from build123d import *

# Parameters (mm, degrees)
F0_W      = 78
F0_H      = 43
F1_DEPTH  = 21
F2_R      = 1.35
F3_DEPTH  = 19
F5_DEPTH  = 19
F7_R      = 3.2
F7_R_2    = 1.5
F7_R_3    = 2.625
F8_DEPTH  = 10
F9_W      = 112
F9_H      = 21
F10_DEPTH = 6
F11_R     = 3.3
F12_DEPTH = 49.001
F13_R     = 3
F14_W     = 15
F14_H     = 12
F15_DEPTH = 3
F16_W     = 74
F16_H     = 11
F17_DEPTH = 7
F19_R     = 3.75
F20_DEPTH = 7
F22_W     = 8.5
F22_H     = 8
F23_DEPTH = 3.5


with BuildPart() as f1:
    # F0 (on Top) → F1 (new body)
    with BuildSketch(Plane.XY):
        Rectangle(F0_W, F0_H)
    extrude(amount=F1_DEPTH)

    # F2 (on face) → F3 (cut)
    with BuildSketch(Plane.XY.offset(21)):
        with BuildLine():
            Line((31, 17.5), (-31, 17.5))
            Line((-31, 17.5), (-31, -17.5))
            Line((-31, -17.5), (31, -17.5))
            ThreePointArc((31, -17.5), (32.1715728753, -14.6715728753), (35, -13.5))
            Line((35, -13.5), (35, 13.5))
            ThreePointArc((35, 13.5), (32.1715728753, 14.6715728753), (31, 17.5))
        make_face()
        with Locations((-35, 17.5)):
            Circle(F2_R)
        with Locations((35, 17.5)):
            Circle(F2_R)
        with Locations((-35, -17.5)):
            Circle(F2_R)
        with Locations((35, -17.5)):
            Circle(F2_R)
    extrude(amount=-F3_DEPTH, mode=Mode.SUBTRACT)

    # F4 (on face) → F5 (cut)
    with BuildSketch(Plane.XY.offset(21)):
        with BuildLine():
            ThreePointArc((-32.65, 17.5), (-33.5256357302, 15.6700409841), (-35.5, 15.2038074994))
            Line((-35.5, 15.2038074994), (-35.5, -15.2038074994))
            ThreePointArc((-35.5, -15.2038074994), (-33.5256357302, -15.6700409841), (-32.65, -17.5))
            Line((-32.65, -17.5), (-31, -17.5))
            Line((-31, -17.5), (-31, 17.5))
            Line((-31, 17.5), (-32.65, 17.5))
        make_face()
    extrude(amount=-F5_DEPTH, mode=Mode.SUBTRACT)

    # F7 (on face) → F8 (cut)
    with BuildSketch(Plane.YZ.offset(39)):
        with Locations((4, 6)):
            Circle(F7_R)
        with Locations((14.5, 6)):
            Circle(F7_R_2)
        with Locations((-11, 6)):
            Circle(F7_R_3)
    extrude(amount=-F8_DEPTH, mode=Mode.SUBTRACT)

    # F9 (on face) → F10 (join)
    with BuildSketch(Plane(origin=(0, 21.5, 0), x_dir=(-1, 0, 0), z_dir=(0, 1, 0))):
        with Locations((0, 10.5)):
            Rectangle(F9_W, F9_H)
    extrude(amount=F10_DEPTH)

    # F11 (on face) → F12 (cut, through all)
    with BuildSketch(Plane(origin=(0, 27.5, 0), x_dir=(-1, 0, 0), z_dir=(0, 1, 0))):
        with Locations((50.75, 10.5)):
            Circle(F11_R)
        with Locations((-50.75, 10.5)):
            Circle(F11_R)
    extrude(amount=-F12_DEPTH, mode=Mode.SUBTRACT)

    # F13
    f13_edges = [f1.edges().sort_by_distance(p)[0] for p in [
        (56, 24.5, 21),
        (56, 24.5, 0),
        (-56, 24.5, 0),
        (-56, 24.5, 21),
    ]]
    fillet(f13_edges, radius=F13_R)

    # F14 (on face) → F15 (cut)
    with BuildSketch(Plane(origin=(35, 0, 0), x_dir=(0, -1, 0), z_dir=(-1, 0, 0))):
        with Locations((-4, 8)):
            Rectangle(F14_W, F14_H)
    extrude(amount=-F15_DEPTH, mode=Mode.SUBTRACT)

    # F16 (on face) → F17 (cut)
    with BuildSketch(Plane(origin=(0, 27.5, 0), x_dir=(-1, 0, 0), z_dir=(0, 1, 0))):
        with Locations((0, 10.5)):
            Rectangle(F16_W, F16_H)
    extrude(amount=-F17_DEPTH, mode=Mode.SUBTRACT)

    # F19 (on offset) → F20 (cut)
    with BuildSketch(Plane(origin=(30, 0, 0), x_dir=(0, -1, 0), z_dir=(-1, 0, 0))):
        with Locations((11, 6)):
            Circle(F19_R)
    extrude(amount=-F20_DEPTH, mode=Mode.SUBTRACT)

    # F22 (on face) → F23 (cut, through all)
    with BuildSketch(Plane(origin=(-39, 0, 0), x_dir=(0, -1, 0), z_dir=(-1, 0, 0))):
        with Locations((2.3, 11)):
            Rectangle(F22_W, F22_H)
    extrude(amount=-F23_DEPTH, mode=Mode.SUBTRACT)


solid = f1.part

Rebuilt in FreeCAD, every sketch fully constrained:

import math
import FreeCAD as App
import Part
import Sketcher
from FreeCAD import Vector


def edges_at(feature, points):
    """Names of the edges that pass closest to the given points."""
    edges = feature.Shape.Edges
    near = lambda p: min(range(len(edges)), key=lambda i: edges[i].distToShape(Part.Vertex(*p))[0])
    return sorted({f"Edge{near(p) + 1}" for p in points})

doc = App.newDocument("Part")
body = doc.addObject("PartDesign::Body", "Body")

# Sketch on XY plane
sketch1 = body.newObject("Sketcher::SketchObject", "Sketch")
sketch1.AttachmentSupport = (doc.getObject("XY_Plane"), [""])
sketch1.MapMode = "FlatFace"
sketch1.addGeometry(Part.LineSegment(Vector(-39, 22, 0), Vector(-39, -22, 0)), False)
sketch1.addGeometry(Part.LineSegment(Vector(-39, -22, 0), Vector(39, -22, 0)), False)
sketch1.addGeometry(Part.LineSegment(Vector(39, -22, 0), Vector(39, 22, 0)), False)
sketch1.addGeometry(Part.LineSegment(Vector(39, 22, 0), Vector(-39, 22, 0)), False)
sketch1.addConstraint(Sketcher.Constraint("Coincident", 0, 2, 1, 1))
sketch1.addConstraint(Sketcher.Constraint("Coincident", 1, 2, 2, 1))
sketch1.addConstraint(Sketcher.Constraint("Coincident", 2, 2, 3, 1))
sketch1.addConstraint(Sketcher.Constraint("Coincident", 3, 2, 0, 1))
sketch1.addConstraint(Sketcher.Constraint("Vertical", 0))
sketch1.addConstraint(Sketcher.Constraint("Horizontal", 1))
sketch1.addConstraint(Sketcher.Constraint("Vertical", 2))
sketch1.addConstraint(Sketcher.Constraint("Horizontal", 3))
sketch1.addConstraint(Sketcher.Constraint("Symmetric", 0, 2, 2, 2, -1, 1))
sketch1.addConstraint(Sketcher.Constraint("DistanceX", 1, 1, 1, 2, 78.0))
sketch1.addConstraint(Sketcher.Constraint("DistanceY", 0, 2, 0, 1, 43.0))
pad1 = body.newObject("PartDesign::Pad", "Pad")
pad1.Profile = sketch1
pad1.Length = 21

# Sketch on XY plane
sketch2 = body.newObject("Sketcher::SketchObject", "Sketch001")
sketch2.AttachmentSupport = (doc.getObject("XY_Plane"), [""])
sketch2.MapMode = "FlatFace"
sketch2.AttachmentOffset = App.Placement(Vector(0, 0, 21), App.Rotation())
sketch2.addGeometry(Part.LineSegment(Vector(31, 17.5, 0), Vector(-31, 17.5, 0)), False)
sketch2.addGeometry(Part.LineSegment(Vector(-31, 17.5, 0), Vector(-31, -17.5, 0)), False)
sketch2.addGeometry(Part.LineSegment(Vector(-31, -17.5, 0), Vector(31, -17.5, 0)), False)
sketch2.addGeometry(Part.ArcOfCircle(Part.Circle(Vector(35, -17.5, 0), Vector(0, 0, 1), 4), math.radians(90), math.radians(180)), False)
sketch2.addGeometry(Part.LineSegment(Vector(35, -13.5, 0), Vector(35, 13.5, 0)), False)
sketch2.addGeometry(Part.ArcOfCircle(Part.Circle(Vector(35, 17.5, 0), Vector(0, 0, 1), 4), math.radians(180), math.radians(270)), False)
sketch2.addGeometry(Part.Circle(Vector(-35, 17.5, 0), Vector(0, 0, 1), 1.4), False)
sketch2.addGeometry(Part.Circle(Vector(35, 17.5, 0), Vector(0, 0, 1), 1.4), False)
sketch2.addGeometry(Part.Circle(Vector(-35, -17.5, 0), Vector(0, 0, 1), 1.4), False)
sketch2.addGeometry(Part.Circle(Vector(35, -17.5, 0), Vector(0, 0, 1), 1.4), False)
sketch2.addConstraint(Sketcher.Constraint("Coincident", 0, 2, 1, 1))
sketch2.addConstraint(Sketcher.Constraint("Coincident", 1, 2, 2, 1))
sketch2.addConstraint(Sketcher.Constraint("Coincident", 2, 2, 3, 2))
sketch2.addConstraint(Sketcher.Constraint("Coincident", 3, 1, 4, 1))
sketch2.addConstraint(Sketcher.Constraint("Coincident", 4, 2, 5, 2))
sketch2.addConstraint(Sketcher.Constraint("Coincident", 5, 1, 0, 1))
sketch2.addConstraint(Sketcher.Constraint("Horizontal", 0))
sketch2.addConstraint(Sketcher.Constraint("Vertical", 1))
sketch2.addConstraint(Sketcher.Constraint("Horizontal", 2))
sketch2.addConstraint(Sketcher.Constraint("Vertical", 4))
sketch2.addConstraint(Sketcher.Constraint("Coincident", 7, 3, 5, 3))
sketch2.addConstraint(Sketcher.Constraint("Coincident", 9, 3, 3, 3))
sketch2.addConstraint(Sketcher.Constraint("Equal", 3, 5))
sketch2.addConstraint(Sketcher.Constraint("Equal", 6, 7))
sketch2.addConstraint(Sketcher.Constraint("Equal", 7, 8))
sketch2.addConstraint(Sketcher.Constraint("Equal", 8, 9))
sketch2.addConstraint(Sketcher.Constraint("Symmetric", 3, 3, 6, 3, -1, 1))
sketch2.addConstraint(Sketcher.Constraint("Symmetric", 5, 3, 8, 3, -1, 1))
sketch2.addConstraint(Sketcher.Constraint("Symmetric", 0, 2, 2, 2, -1, 1))
sketch2.addConstraint(Sketcher.Constraint("Symmetric", 5, 3, 6, 3, -2))
sketch2.addConstraint(Sketcher.Constraint("Horizontal", 7, 3, 0, 2))
sketch2.addConstraint(Sketcher.Constraint("Vertical", 9, 3, 3, 1))
sketch2.addConstraint(Sketcher.Constraint("Radius", 3, 4.0))
sketch2.addConstraint(Sketcher.Constraint("Diameter", 6, 2.7))
sketch2.addConstraint(Sketcher.Constraint("DistanceX", 0, 2, 0, 1, 62.0))
sketch2.addConstraint(Sketcher.Constraint("DistanceY", 1, 2, 1, 1, 35.0))
pocket1 = body.newObject("PartDesign::Pocket", "Pocket")
pocket1.Profile = sketch2
pocket1.Length = 19

# Sketch on XY plane
sketch3 = body.newObject("Sketcher::SketchObject", "Sketch002")
sketch3.AttachmentSupport = (doc.getObject("XY_Plane"), [""])
sketch3.MapMode = "FlatFace"
sketch3.AttachmentOffset = App.Placement(Vector(0, 0, 21), App.Rotation())
sketch3.addGeometry(Part.ArcOfCircle(Part.Circle(Vector(-35, 17.5, 0), Vector(0, 0, 1), 2.4), math.radians(-102), math.radians(0)), False)
sketch3.addGeometry(Part.LineSegment(Vector(-35.5, 15.2, 0), Vector(-35.5, -15.2, 0)), False)
sketch3.addGeometry(Part.ArcOfCircle(Part.Circle(Vector(-35, -17.5, 0), Vector(0, 0, 1), 2.4), math.radians(0), math.radians(102)), False)
sketch3.addGeometry(Part.LineSegment(Vector(-32.6, -17.5, 0), Vector(-31, -17.5, 0)), False)
sketch3.addGeometry(Part.LineSegment(Vector(-31, -17.5, 0), Vector(-31, 17.5, 0)), False)
sketch3.addGeometry(Part.LineSegment(Vector(-31, 17.5, 0), Vector(-32.6, 17.5, 0)), False)
sketch3.addConstraint(Sketcher.Constraint("Coincident", 0, 1, 1, 1))
sketch3.addConstraint(Sketcher.Constraint("Coincident", 1, 2, 2, 2))
sketch3.addConstraint(Sketcher.Constraint("Coincident", 2, 1, 3, 1))
sketch3.addConstraint(Sketcher.Constraint("Coincident", 3, 2, 4, 1))
sketch3.addConstraint(Sketcher.Constraint("Coincident", 4, 2, 5, 1))
sketch3.addConstraint(Sketcher.Constraint("Coincident", 5, 2, 0, 2))
sketch3.addConstraint(Sketcher.Constraint("Vertical", 1))
sketch3.addConstraint(Sketcher.Constraint("Horizontal", 3))
sketch3.addConstraint(Sketcher.Constraint("Vertical", 4))
sketch3.addConstraint(Sketcher.Constraint("Horizontal", 5))
sketch3.addConstraint(Sketcher.Constraint("Equal", 0, 2))
sketch3.addConstraint(Sketcher.Constraint("Symmetric", 0, 3, 2, 3, -1))
sketch3.addConstraint(Sketcher.Constraint("Horizontal", 0, 3, 4, 2))
sketch3.addConstraint(Sketcher.Constraint("DistanceY", 4, 1, 4, 2, 35.0))
sketch3.addConstraint(Sketcher.Constraint("Radius", 0, 2.35))
sketch3.addConstraint(Sketcher.Constraint("DistanceX", 0, 3, -1, 1, 35.0))
sketch3.addConstraint(Sketcher.Constraint("DistanceX", 3, 2, -1, 1, 31.0))
sketch3.addConstraint(Sketcher.Constraint("DistanceY", 2, 3, 0, 3, 35.0))
sketch3.addConstraint(Sketcher.Constraint("DistanceX", 0, 1, -1, 1, 35.5))
pocket2 = body.newObject("PartDesign::Pocket", "Pocket001")
pocket2.Profile = sketch3
pocket2.Length = 19

# Sketch on YZ plane
sketch4 = body.newObject("Sketcher::SketchObject", "Sketch003")
sketch4.AttachmentSupport = (doc.getObject("YZ_Plane"), [""])
sketch4.MapMode = "FlatFace"
sketch4.AttachmentOffset = App.Placement(Vector(0, 0, 39), App.Rotation())
sketch4.addGeometry(Part.Circle(Vector(4, 6, 0), Vector(0, 0, 1), 3.2), False)
sketch4.addGeometry(Part.Circle(Vector(14.5, 6, 0), Vector(0, 0, 1), 1.5), False)
sketch4.addGeometry(Part.Circle(Vector(-11, 6, 0), Vector(0, 0, 1), 2.6), False)
sketch4.addConstraint(Sketcher.Constraint("Horizontal", 0, 3, 1, 3))
sketch4.addConstraint(Sketcher.Constraint("Horizontal", 1, 3, 2, 3))
sketch4.addConstraint(Sketcher.Constraint("Diameter", 1, 3.0))
sketch4.addConstraint(Sketcher.Constraint("Diameter", 0, 6.4))
sketch4.addConstraint(Sketcher.Constraint("Diameter", 2, 5.25))
sketch4.addConstraint(Sketcher.Constraint("DistanceX", -1, 1, 0, 3, 4.0))
sketch4.addConstraint(Sketcher.Constraint("DistanceY", -1, 1, 0, 3, 6.0))
sketch4.addConstraint(Sketcher.Constraint("DistanceX", 2, 3, -1, 1, 11.0))
sketch4.addConstraint(Sketcher.Constraint("DistanceX", -1, 1, 1, 3, 14.5))
pocket3 = body.newObject("PartDesign::Pocket", "Pocket002")
pocket3.Profile = sketch4
pocket3.Length = 10

# Sketch on XZ plane
sketch5 = body.newObject("Sketcher::SketchObject", "Sketch004")
sketch5.AttachmentSupport = (doc.getObject("XZ_Plane"), [""])
sketch5.MapMode = "FlatFace"
sketch5.AttachmentOffset = App.Placement(Vector(0, 0, -21.5), App.Rotation())
sketch5.addGeometry(Part.LineSegment(Vector(56, 21, 0), Vector(56, 0, 0)), False)
sketch5.addGeometry(Part.LineSegment(Vector(56, 0, 0), Vector(-56, 0, 0)), False)
sketch5.addGeometry(Part.LineSegment(Vector(-56, 0, 0), Vector(-56, 21, 0)), False)
sketch5.addGeometry(Part.LineSegment(Vector(-56, 21, 0), Vector(56, 21, 0)), False)
sketch5.addConstraint(Sketcher.Constraint("Coincident", 0, 2, 1, 1))
sketch5.addConstraint(Sketcher.Constraint("Coincident", 1, 2, 2, 1))
sketch5.addConstraint(Sketcher.Constraint("Coincident", 2, 2, 3, 1))
sketch5.addConstraint(Sketcher.Constraint("Coincident", 3, 2, 0, 1))
sketch5.addConstraint(Sketcher.Constraint("Vertical", 0))
sketch5.addConstraint(Sketcher.Constraint("Horizontal", 1))
sketch5.addConstraint(Sketcher.Constraint("Vertical", 2))
sketch5.addConstraint(Sketcher.Constraint("Horizontal", 3))
sketch5.addConstraint(Sketcher.Constraint("Symmetric", 0, 2, 1, 2, -1, 1))
sketch5.addConstraint(Sketcher.Constraint("DistanceX", 1, 2, 1, 1, 112.0))
sketch5.addConstraint(Sketcher.Constraint("DistanceY", 0, 2, 0, 1, 21.0))
pad2 = body.newObject("PartDesign::Pad", "Pad001")
pad2.Profile = sketch5
pad2.Length = 6
pad2.Reversed = True

# Sketch on XZ plane
sketch6 = body.newObject("Sketcher::SketchObject", "Sketch005")
sketch6.AttachmentSupport = (doc.getObject("XZ_Plane"), [""])
sketch6.MapMode = "FlatFace"
sketch6.AttachmentOffset = App.Placement(Vector(0, 0, -27.5), App.Rotation())
sketch6.addGeometry(Part.Circle(Vector(-50.8, 10.5, 0), Vector(0, 0, 1), 3.3), False)
sketch6.addGeometry(Part.Circle(Vector(50.8, 10.5, 0), Vector(0, 0, 1), 3.3), False)
sketch6.addConstraint(Sketcher.Constraint("Equal", 0, 1))
sketch6.addConstraint(Sketcher.Constraint("Symmetric", 0, 3, 1, 3, -2))
sketch6.addConstraint(Sketcher.Constraint("Diameter", 0, 6.6))
sketch6.addConstraint(Sketcher.Constraint("DistanceY", -1, 1, 0, 3, 10.5))
sketch6.addConstraint(Sketcher.Constraint("DistanceX", 0, 3, 1, 3, 101.5))
pocket4 = body.newObject("PartDesign::Pocket", "Pocket003")
pocket4.Profile = sketch6
pocket4.Type = "ThroughAll"
pocket4.Reversed = True
doc.recompute()

fillet = body.newObject("PartDesign::Fillet", "Fillet")
fillet.Base = (pocket4, edges_at(pocket4, [
    (56, 24.5, 21),
    (56, 24.5, 0),
    (-56, 24.5, 0),
    (-56, 24.5, 21),
]))
fillet.Radius = 3

# Sketch on YZ plane
sketch7 = body.newObject("Sketcher::SketchObject", "Sketch006")
sketch7.AttachmentSupport = (doc.getObject("YZ_Plane"), [""])
sketch7.MapMode = "FlatFace"
sketch7.AttachmentOffset = App.Placement(Vector(0, 0, 35), App.Rotation())
sketch7.addGeometry(Part.LineSegment(Vector(12, 14, 0), Vector(12, 2, 0)), False)
sketch7.addGeometry(Part.LineSegment(Vector(12, 2, 0), Vector(-4, 2, 0)), False)
sketch7.addGeometry(Part.LineSegment(Vector(-4, 2, 0), Vector(-4, 14, 0)), False)
sketch7.addGeometry(Part.LineSegment(Vector(-4, 14, 0), Vector(12, 14, 0)), False)
sketch7.addConstraint(Sketcher.Constraint("Coincident", 0, 2, 1, 1))
sketch7.addConstraint(Sketcher.Constraint("Coincident", 1, 2, 2, 1))
sketch7.addConstraint(Sketcher.Constraint("Coincident", 2, 2, 3, 1))
sketch7.addConstraint(Sketcher.Constraint("Coincident", 3, 2, 0, 1))
sketch7.addConstraint(Sketcher.Constraint("Vertical", 0))
sketch7.addConstraint(Sketcher.Constraint("Horizontal", 1))
sketch7.addConstraint(Sketcher.Constraint("Vertical", 2))
sketch7.addConstraint(Sketcher.Constraint("Horizontal", 3))
sketch7.addConstraint(Sketcher.Constraint("DistanceX", 1, 2, 1, 1, 15.0))
sketch7.addConstraint(Sketcher.Constraint("DistanceY", 0, 2, 0, 1, 12.0))
sketch7.addConstraint(Sketcher.Constraint("DistanceY", -1, 1, 0, 2, 2.0))
sketch7.addConstraint(Sketcher.Constraint("DistanceX", -1, 1, 0, 2, 11.5))
pocket5 = body.newObject("PartDesign::Pocket", "Pocket004")
pocket5.Profile = sketch7
pocket5.Length = 3
pocket5.Reversed = True

# Sketch on XZ plane
sketch8 = body.newObject("Sketcher::SketchObject", "Sketch007")
sketch8.AttachmentSupport = (doc.getObject("XZ_Plane"), [""])
sketch8.MapMode = "FlatFace"
sketch8.AttachmentOffset = App.Placement(Vector(0, 0, -27.5), App.Rotation())
sketch8.addGeometry(Part.LineSegment(Vector(37, 16, 0), Vector(37, 5, 0)), False)
sketch8.addGeometry(Part.LineSegment(Vector(37, 5, 0), Vector(-37, 5, 0)), False)
sketch8.addGeometry(Part.LineSegment(Vector(-37, 5, 0), Vector(-37, 16, 0)), False)
sketch8.addGeometry(Part.LineSegment(Vector(-37, 16, 0), Vector(37, 16, 0)), False)
sketch8.addConstraint(Sketcher.Constraint("Coincident", 0, 2, 1, 1))
sketch8.addConstraint(Sketcher.Constraint("Coincident", 1, 2, 2, 1))
sketch8.addConstraint(Sketcher.Constraint("Coincident", 2, 2, 3, 1))
sketch8.addConstraint(Sketcher.Constraint("Coincident", 3, 2, 0, 1))
sketch8.addConstraint(Sketcher.Constraint("Vertical", 0))
sketch8.addConstraint(Sketcher.Constraint("Horizontal", 1))
sketch8.addConstraint(Sketcher.Constraint("Vertical", 2))
sketch8.addConstraint(Sketcher.Constraint("Horizontal", 3))
sketch8.addConstraint(Sketcher.Constraint("DistanceX", 1, 2, 1, 1, 74.0))
sketch8.addConstraint(Sketcher.Constraint("DistanceY", 0, 2, 0, 1, 11.0))
sketch8.addConstraint(Sketcher.Constraint("DistanceX", -1, 1, 0, 2, 37.0))
sketch8.addConstraint(Sketcher.Constraint("DistanceY", -1, 1, 0, 2, 5.0))
pocket6 = body.newObject("PartDesign::Pocket", "Pocket005")
pocket6.Profile = sketch8
pocket6.Length = 7
pocket6.Reversed = True

# Sketch on YZ plane
sketch9 = body.newObject("Sketcher::SketchObject", "Sketch008")
sketch9.AttachmentSupport = (doc.getObject("YZ_Plane"), [""])
sketch9.MapMode = "FlatFace"
sketch9.AttachmentOffset = App.Placement(Vector(0, 0, 30), App.Rotation())
sketch9.addGeometry(Part.Circle(Vector(-11, 6, 0), Vector(0, 0, 1), 3.8), False)
sketch9.addConstraint(Sketcher.Constraint("Diameter", 0, 7.5))
sketch9.addConstraint(Sketcher.Constraint("DistanceX", 0, 3, -1, 1, 11.0))
sketch9.addConstraint(Sketcher.Constraint("DistanceY", -1, 1, 0, 3, 6.0))
pocket7 = body.newObject("PartDesign::Pocket", "Pocket006")
pocket7.Profile = sketch9
pocket7.Length = 7
pocket7.Reversed = True

# Sketch on YZ plane
sketch10 = body.newObject("Sketcher::SketchObject", "Sketch009")
sketch10.AttachmentSupport = (doc.getObject("YZ_Plane"), [""])
sketch10.MapMode = "FlatFace"
sketch10.AttachmentOffset = App.Placement(Vector(0, 0, -39), App.Rotation())
sketch10.addGeometry(Part.LineSegment(Vector(2, 15, 0), Vector(2, 7, 0)), False)
sketch10.addGeometry(Part.LineSegment(Vector(2, 7, 0), Vector(-7, 7, 0)), False)
sketch10.addGeometry(Part.LineSegment(Vector(-7, 7, 0), Vector(-7, 15, 0)), False)
sketch10.addGeometry(Part.LineSegment(Vector(-7, 15, 0), Vector(2, 15, 0)), False)
sketch10.addConstraint(Sketcher.Constraint("Coincident", 0, 2, 1, 1))
sketch10.addConstraint(Sketcher.Constraint("Coincident", 1, 2, 2, 1))
sketch10.addConstraint(Sketcher.Constraint("Coincident", 2, 2, 3, 1))
sketch10.addConstraint(Sketcher.Constraint("Coincident", 3, 2, 0, 1))
sketch10.addConstraint(Sketcher.Constraint("Vertical", 0))
sketch10.addConstraint(Sketcher.Constraint("Horizontal", 1))
sketch10.addConstraint(Sketcher.Constraint("Vertical", 2))
sketch10.addConstraint(Sketcher.Constraint("Horizontal", 3))
sketch10.addConstraint(Sketcher.Constraint("DistanceY", 0, 2, 0, 1, 8.0))
sketch10.addConstraint(Sketcher.Constraint("DistanceX", 1, 2, 1, 1, 8.5))
sketch10.addConstraint(Sketcher.Constraint("DistanceY", -1, 1, 0, 2, 7.0))
sketch10.addConstraint(Sketcher.Constraint("DistanceX", -1, 1, 0, 2, 1.95))
pocket8 = body.newObject("PartDesign::Pocket", "Pocket007")
pocket8.Profile = sketch10
pocket8.Length = 3.5
pocket8.Reversed = True

doc.recompute()
